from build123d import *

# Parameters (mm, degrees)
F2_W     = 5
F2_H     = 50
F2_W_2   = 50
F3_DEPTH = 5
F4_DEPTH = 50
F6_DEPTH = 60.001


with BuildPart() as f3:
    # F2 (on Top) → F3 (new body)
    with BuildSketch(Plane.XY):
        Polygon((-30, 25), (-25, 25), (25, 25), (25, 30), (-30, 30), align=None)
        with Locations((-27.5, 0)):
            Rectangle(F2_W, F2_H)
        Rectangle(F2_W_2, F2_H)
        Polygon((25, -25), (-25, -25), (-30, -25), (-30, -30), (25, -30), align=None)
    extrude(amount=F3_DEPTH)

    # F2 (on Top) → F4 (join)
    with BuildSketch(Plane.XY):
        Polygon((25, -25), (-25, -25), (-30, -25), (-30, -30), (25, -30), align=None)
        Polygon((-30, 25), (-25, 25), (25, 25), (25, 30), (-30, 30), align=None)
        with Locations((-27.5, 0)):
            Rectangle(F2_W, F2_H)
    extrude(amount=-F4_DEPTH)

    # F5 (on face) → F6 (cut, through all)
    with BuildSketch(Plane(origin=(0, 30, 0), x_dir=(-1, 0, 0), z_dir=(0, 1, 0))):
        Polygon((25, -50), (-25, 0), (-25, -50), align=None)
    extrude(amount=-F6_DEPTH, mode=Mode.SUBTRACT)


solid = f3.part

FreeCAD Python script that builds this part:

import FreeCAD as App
import Part
import Sketcher
from FreeCAD import Vector

doc = App.newDocument("Part")
body = doc.addObject("PartDesign::Body", "Body")

# Sketch on XY plane
sketch1 = body.newObject("Sketcher::SketchObject", "Sketch")
sketch1.AttachmentSupport = (doc.getObject("XY_Plane"), [""])
sketch1.MapMode = "FlatFace"
sketch1.addGeometry([
    Part.LineSegment(Vector(25, 30, 0), Vector(-30, 30, 0)),
    Part.LineSegment(Vector(-30, 30, 0), Vector(-30, -30, 0)),
    Part.LineSegment(Vector(-30, -30, 0), Vector(25, -30, 0)),
    Part.LineSegment(Vector(25, -30, 0), Vector(25, 30, 0)),
], False)
sketch1.addConstraint([
    Sketcher.Constraint("Coincident", 0, 2, 1, 1),
    Sketcher.Constraint("Coincident", 1, 2, 2, 1),
    Sketcher.Constraint("Coincident", 2, 2, 3, 1),
    Sketcher.Constraint("Coincident", 3, 2, 0, 1),
    Sketcher.Constraint("Horizontal", 0),
    Sketcher.Constraint("Vertical", 1),
    Sketcher.Constraint("Horizontal", 2),
    Sketcher.Constraint("Vertical", 3),
    Sketcher.Constraint("DistanceX", 0, 2, 0, 1, 55.0),
    Sketcher.Constraint("DistanceY", 1, 2, 1, 1, 60.0),
    Sketcher.Constraint("DistanceX", 0, 2, -1, 1, 30.0),
    Sketcher.Constraint("DistanceY", -1, 1, 0, 2, 30.0),
])
pad1 = body.newObject("PartDesign::Pad", "Pad")
pad1.Profile = sketch1
pad1.Length = 5

# Sketch on XY plane
sketch2 = body.newObject("Sketcher::SketchObject", "Sketch001")
sketch2.AttachmentSupport = (doc.getObject("XY_Plane"), [""])
sketch2.MapMode = "FlatFace"
sketch2.addGeometry([
    Part.LineSegment(Vector(25, -25, 0), Vector(-25, -25, 0)),  # 0
    Part.LineSegment(Vector(-25, -25, 0), Vector(-25, 25, 0)),  # 1
    Part.LineSegment(Vector(-25, 25, 0), Vector(25, 25, 0)),  # 2
    Part.LineSegment(Vector(25, 25, 0), Vector(25, 30, 0)),  # 3
    Part.LineSegment(Vector(25, 30, 0), Vector(-30, 30, 0)),  # 4
    Part.LineSegment(Vector(-30, 30, 0), Vector(-30, -30, 0)),  # 5
    Part.LineSegment(Vector(-30, -30, 0), Vector(25, -30, 0)),  # 6
    Part.LineSegment(Vector(25, -30, 0), Vector(25, -25, 0)),  # 7
], False)
sketch2.addConstraint([
    Sketcher.Constraint("Coincident", 0, 2, 1, 1),
    Sketcher.Constraint("Coincident", 1, 2, 2, 1),
    Sketcher.Constraint("Coincident", 2, 2, 3, 1),
    Sketcher.Constraint("Coincident", 3, 2, 4, 1),
    Sketcher.Constraint("Coincident", 4, 2, 5, 1),
    Sketcher.Constraint("Coincident", 5, 2, 6, 1),
    Sketcher.Constraint("Coincident", 6, 2, 7, 1),
    Sketcher.Constraint("Coincident", 7, 2, 0, 1),
    Sketcher.Constraint("Horizontal", 0),
    Sketcher.Constraint("Vertical", 1),
    Sketcher.Constraint("Horizontal", 2),
    Sketcher.Constraint("Vertical", 3),
    Sketcher.Constraint("Horizontal", 4),
    Sketcher.Constraint("Vertical", 5),
    Sketcher.Constraint("Horizontal", 6),
    Sketcher.Constraint("Vertical", 7),
    Sketcher.Constraint("Symmetric", 0, 2, 2, 2, -1, 1),
    Sketcher.Constraint("Symmetric", 3, 2, 6, 2, -1),
    Sketcher.Constraint("Equal", 2, 1),
    Sketcher.Constraint("DistanceX", 0, 2, 0, 1, 50.0),
    Sketcher.Constraint("DistanceX", 4, 2, 4, 1, 55.0),
    Sketcher.Constraint("DistanceY", 3, 1, 3, 2, 5.0),
])
pad2 = body.newObject("PartDesign::Pad", "Pad001")
pad2.Profile = sketch2
pad2.Length = 50
pad2.Reversed = True

# Sketch on XZ plane
sketch3 = body.newObject("Sketcher::SketchObject", "Sketch002")
sketch3.AttachmentSupport = (doc.getObject("XZ_Plane"), [""])
sketch3.MapMode = "FlatFace"
sketch3.AttachmentOffset = App.Placement(Vector(0, 0, -30), App.Rotation())
sketch3.addGeometry([
    Part.LineSegment(Vector(-25, -50, 0), Vector(25, 0, 0)),
    Part.LineSegment(Vector(25, 0, 0), Vector(25, -50, 0)),
    Part.LineSegment(Vector(25, -50, 0), Vector(-25, -50, 0)),
], False)
sketch3.addConstraint([
    Sketcher.Constraint("Coincident", 0, 2, 1, 1),
    Sketcher.Constraint("Coincident", 1, 2, 2, 1),
    Sketcher.Constraint("Coincident", 2, 2, 0, 1),
    Sketcher.Constraint("Vertical", 1),
    Sketcher.Constraint("Horizontal", 2),
    Sketcher.Constraint("PointOnObject", 0, 2, -1),
    Sketcher.Constraint("Equal", 2, 1),
    Sketcher.Constraint("DistanceX", 2, 2, 2, 1, 50.0),
    Sketcher.Constraint("DistanceX", -1, 1, 0, 2, 25.0),
])
pocket1 = body.newObject("PartDesign::Pocket", "Pocket")
pocket1.Profile = sketch3
pocket1.Type = "ThroughAll"
pocket1.Reversed = True

doc.recompute()
